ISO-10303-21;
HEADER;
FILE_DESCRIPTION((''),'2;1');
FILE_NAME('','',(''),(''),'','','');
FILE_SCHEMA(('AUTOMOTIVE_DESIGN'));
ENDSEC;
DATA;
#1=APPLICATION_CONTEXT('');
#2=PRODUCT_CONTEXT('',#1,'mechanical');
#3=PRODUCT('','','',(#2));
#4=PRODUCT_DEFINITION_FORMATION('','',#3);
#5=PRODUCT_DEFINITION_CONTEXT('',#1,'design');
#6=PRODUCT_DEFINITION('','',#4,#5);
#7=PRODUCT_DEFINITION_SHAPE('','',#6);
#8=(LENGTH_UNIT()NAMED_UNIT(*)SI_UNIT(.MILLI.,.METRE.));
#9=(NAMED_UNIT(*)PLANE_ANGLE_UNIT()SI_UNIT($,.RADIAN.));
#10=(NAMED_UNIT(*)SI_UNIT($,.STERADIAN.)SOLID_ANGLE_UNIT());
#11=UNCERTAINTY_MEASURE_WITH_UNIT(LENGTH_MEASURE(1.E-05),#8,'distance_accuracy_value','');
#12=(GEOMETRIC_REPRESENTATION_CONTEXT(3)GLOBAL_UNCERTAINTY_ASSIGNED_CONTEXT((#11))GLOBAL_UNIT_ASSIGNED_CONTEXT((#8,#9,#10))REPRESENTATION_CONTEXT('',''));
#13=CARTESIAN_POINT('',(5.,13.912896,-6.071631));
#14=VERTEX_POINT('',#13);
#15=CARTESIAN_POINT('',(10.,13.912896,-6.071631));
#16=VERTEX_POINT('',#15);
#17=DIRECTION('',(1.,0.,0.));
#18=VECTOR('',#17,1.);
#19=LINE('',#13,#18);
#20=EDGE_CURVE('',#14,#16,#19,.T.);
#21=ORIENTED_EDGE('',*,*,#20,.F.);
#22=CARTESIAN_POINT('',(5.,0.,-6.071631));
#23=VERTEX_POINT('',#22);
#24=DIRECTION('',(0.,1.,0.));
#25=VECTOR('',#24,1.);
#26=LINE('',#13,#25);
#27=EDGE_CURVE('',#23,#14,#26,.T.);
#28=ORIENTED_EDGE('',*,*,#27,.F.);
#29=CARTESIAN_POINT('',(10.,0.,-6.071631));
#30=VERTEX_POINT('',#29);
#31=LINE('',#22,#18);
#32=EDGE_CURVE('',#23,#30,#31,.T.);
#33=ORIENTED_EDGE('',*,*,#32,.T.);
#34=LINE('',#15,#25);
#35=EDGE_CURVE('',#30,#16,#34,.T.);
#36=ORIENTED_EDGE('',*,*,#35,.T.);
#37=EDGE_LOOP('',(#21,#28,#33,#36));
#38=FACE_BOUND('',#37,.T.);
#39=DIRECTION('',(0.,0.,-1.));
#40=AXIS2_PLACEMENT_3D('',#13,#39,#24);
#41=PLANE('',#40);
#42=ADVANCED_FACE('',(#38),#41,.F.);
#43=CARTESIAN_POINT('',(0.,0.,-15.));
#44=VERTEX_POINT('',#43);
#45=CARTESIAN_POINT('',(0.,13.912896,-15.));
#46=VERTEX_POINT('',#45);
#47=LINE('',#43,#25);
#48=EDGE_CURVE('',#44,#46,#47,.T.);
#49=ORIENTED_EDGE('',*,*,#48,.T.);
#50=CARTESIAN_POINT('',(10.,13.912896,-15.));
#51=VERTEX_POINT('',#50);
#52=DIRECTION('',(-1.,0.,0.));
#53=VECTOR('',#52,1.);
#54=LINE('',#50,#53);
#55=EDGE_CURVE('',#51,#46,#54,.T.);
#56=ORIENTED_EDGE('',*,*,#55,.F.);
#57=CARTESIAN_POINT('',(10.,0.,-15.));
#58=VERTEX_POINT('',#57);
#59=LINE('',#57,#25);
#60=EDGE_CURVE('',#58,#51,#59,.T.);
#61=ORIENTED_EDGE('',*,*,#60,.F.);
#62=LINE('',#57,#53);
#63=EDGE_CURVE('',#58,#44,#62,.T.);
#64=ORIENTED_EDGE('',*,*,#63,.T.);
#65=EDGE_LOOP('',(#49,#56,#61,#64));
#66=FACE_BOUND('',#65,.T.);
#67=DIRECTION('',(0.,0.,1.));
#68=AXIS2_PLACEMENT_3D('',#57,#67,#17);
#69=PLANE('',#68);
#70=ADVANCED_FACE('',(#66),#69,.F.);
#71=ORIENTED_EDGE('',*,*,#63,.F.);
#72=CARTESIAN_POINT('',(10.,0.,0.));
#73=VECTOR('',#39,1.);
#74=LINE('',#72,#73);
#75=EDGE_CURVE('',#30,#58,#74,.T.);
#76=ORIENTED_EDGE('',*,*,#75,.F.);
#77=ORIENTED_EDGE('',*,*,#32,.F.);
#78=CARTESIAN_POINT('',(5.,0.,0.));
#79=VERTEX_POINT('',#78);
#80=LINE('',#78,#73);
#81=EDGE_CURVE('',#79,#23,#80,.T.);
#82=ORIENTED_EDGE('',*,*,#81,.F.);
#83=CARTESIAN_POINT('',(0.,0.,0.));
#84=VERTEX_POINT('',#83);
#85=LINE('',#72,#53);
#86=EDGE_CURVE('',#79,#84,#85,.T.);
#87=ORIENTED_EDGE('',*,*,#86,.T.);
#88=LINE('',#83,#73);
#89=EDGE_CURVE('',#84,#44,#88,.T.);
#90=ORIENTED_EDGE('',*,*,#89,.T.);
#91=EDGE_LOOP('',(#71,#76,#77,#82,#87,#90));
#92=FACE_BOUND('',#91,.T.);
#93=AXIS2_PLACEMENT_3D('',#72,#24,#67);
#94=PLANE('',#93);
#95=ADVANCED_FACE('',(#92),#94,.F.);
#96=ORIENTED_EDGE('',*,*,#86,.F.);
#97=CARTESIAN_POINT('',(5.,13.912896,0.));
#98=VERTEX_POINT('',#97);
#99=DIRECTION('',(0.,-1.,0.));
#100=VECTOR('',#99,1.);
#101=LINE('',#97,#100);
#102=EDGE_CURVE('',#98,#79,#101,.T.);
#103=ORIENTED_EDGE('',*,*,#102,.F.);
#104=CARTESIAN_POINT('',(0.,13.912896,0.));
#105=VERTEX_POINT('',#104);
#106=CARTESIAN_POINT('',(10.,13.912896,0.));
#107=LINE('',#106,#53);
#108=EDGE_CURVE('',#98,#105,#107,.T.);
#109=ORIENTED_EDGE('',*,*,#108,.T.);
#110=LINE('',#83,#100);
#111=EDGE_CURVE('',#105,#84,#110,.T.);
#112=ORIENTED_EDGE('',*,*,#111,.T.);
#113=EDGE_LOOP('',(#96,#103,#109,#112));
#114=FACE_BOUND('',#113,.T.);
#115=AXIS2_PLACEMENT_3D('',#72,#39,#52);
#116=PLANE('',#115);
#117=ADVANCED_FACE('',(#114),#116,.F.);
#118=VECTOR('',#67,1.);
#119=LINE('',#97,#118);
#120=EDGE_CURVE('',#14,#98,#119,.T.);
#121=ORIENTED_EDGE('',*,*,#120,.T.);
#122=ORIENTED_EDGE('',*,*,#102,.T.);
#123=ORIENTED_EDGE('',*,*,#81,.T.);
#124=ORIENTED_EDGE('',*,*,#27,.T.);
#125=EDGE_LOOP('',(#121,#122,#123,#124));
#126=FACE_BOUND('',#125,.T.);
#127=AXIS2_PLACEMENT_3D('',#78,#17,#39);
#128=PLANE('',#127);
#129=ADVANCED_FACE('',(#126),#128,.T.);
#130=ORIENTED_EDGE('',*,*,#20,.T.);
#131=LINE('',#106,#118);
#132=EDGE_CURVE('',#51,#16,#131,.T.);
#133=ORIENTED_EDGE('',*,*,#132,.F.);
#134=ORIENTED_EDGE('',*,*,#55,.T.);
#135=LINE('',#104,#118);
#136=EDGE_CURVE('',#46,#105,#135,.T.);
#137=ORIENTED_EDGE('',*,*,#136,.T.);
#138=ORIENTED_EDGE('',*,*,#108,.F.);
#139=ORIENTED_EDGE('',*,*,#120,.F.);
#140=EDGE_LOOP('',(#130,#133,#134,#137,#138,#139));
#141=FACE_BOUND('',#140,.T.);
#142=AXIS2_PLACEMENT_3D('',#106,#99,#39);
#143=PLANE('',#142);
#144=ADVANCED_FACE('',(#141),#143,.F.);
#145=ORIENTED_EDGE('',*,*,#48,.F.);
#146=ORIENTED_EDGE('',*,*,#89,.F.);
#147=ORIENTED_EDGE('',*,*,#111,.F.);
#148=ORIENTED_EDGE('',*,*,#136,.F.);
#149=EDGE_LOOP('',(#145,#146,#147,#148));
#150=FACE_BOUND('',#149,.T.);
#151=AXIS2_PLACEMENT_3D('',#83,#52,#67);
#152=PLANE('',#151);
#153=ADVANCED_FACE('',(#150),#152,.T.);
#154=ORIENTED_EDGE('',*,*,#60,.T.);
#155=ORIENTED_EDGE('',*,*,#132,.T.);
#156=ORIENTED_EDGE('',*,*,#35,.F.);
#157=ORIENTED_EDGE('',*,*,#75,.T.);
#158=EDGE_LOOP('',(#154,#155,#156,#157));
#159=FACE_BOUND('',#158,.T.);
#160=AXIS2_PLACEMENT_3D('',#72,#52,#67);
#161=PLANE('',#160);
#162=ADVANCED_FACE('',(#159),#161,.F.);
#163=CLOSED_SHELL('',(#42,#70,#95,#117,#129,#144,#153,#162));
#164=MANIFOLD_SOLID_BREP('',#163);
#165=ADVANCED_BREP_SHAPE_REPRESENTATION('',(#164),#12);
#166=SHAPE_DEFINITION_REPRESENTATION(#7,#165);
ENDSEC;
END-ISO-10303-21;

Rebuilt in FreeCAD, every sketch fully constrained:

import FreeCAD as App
import Part
import Sketcher
Q = App.Units.Quantity

doc = App.newDocument("Part")
body = doc.addObject("PartDesign::Body", "Body")

# Sketch on YZ plane
sketch1 = body.newObject("Sketcher::SketchObject", "Sketch")
sketch1.AttachmentSupport = (doc.getObject("YZ_Plane"), [""])
sketch1.MapMode = "FlatFace"
sketch1.addGeometry([
    Part.LineSegment(App.Vector(14, 0, 0), App.Vector(0, 0, 0)),
    Part.LineSegment(App.Vector(0, 0, 0), App.Vector(0, -15, 0)),
    Part.LineSegment(App.Vector(0, -15, 0), App.Vector(14, -15, 0)),
    Part.LineSegment(App.Vector(14, -15, 0), App.Vector(14, 0, 0)),
], False)
sketch1.addConstraint([
    Sketcher.Constraint("Coincident", 0, 2, 1, 1),
    Sketcher.Constraint("Coincident", 1, 2, 2, 1),
    Sketcher.Constraint("Coincident", 2, 2, 3, 1),
    Sketcher.Constraint("Coincident", 3, 2, 0, 1),
    Sketcher.Constraint("Horizontal", 0),
    Sketcher.Constraint("Vertical", 1),
    Sketcher.Constraint("Horizontal", 2),
    Sketcher.Constraint("Vertical", 3),
    Sketcher.Constraint("Coincident", 0, 2, -1, 1),
    Sketcher.Constraint("DistanceY", 1, 2, 1, 1, Q("15 mm")),
    Sketcher.Constraint("DistanceX", 0, 2, 0, 1, Q("13.912896 mm")),
])
pad1 = body.newObject("PartDesign::Pad", "Pad")
pad1.Profile = sketch1
pad1.Length = 10

# Sketch on YZ plane
sketch2 = body.newObject("Sketcher::SketchObject", "Sketch001")
sketch2.AttachmentSupport = (doc.getObject("YZ_Plane"), [""])
sketch2.MapMode = "FlatFace"
sketch2.AttachmentOffset = App.Placement(App.Vector(0, 0, 10), App.Rotation())
sketch2.addGeometry([
    Part.LineSegment(App.Vector(14, 0, 0), App.Vector(0, 0, 0)),
    Part.LineSegment(App.Vector(0, 0, 0), App.Vector(0, -6, 0)),
    Part.LineSegment(App.Vector(0, -6, 0), App.Vector(14, -6, 0)),
    Part.LineSegment(App.Vector(14, -6, 0), App.Vector(14, 0, 0)),
], False)
sketch2.addConstraint([
    Sketcher.Constraint("Coincident", 0, 2, 1, 1),
    Sketcher.Constraint("Coincident", 1, 2, 2, 1),
    Sketcher.Constraint("Coincident", 2, 2, 3, 1),
    Sketcher.Constraint("Coincident", 3, 2, 0, 1),
    Sketcher.Constraint("Horizontal", 0),
    Sketcher.Constraint("Vertical", 1),
    Sketcher.Constraint("Horizontal", 2),
    Sketcher.Constraint("Vertical", 3),
    Sketcher.Constraint("Coincident", 0, 2, -1, 1),
    Sketcher.Constraint("DistanceY", 1, 2, 1, 1, Q("6.071631 mm")),
    Sketcher.Constraint("DistanceX", 0, 2, 0, 1, Q("13.912896 mm")),
])
pocket1 = body.newObject("PartDesign::Pocket", "Pocket")
pocket1.Profile = sketch2
pocket1.Length = 5

doc.recompute()
